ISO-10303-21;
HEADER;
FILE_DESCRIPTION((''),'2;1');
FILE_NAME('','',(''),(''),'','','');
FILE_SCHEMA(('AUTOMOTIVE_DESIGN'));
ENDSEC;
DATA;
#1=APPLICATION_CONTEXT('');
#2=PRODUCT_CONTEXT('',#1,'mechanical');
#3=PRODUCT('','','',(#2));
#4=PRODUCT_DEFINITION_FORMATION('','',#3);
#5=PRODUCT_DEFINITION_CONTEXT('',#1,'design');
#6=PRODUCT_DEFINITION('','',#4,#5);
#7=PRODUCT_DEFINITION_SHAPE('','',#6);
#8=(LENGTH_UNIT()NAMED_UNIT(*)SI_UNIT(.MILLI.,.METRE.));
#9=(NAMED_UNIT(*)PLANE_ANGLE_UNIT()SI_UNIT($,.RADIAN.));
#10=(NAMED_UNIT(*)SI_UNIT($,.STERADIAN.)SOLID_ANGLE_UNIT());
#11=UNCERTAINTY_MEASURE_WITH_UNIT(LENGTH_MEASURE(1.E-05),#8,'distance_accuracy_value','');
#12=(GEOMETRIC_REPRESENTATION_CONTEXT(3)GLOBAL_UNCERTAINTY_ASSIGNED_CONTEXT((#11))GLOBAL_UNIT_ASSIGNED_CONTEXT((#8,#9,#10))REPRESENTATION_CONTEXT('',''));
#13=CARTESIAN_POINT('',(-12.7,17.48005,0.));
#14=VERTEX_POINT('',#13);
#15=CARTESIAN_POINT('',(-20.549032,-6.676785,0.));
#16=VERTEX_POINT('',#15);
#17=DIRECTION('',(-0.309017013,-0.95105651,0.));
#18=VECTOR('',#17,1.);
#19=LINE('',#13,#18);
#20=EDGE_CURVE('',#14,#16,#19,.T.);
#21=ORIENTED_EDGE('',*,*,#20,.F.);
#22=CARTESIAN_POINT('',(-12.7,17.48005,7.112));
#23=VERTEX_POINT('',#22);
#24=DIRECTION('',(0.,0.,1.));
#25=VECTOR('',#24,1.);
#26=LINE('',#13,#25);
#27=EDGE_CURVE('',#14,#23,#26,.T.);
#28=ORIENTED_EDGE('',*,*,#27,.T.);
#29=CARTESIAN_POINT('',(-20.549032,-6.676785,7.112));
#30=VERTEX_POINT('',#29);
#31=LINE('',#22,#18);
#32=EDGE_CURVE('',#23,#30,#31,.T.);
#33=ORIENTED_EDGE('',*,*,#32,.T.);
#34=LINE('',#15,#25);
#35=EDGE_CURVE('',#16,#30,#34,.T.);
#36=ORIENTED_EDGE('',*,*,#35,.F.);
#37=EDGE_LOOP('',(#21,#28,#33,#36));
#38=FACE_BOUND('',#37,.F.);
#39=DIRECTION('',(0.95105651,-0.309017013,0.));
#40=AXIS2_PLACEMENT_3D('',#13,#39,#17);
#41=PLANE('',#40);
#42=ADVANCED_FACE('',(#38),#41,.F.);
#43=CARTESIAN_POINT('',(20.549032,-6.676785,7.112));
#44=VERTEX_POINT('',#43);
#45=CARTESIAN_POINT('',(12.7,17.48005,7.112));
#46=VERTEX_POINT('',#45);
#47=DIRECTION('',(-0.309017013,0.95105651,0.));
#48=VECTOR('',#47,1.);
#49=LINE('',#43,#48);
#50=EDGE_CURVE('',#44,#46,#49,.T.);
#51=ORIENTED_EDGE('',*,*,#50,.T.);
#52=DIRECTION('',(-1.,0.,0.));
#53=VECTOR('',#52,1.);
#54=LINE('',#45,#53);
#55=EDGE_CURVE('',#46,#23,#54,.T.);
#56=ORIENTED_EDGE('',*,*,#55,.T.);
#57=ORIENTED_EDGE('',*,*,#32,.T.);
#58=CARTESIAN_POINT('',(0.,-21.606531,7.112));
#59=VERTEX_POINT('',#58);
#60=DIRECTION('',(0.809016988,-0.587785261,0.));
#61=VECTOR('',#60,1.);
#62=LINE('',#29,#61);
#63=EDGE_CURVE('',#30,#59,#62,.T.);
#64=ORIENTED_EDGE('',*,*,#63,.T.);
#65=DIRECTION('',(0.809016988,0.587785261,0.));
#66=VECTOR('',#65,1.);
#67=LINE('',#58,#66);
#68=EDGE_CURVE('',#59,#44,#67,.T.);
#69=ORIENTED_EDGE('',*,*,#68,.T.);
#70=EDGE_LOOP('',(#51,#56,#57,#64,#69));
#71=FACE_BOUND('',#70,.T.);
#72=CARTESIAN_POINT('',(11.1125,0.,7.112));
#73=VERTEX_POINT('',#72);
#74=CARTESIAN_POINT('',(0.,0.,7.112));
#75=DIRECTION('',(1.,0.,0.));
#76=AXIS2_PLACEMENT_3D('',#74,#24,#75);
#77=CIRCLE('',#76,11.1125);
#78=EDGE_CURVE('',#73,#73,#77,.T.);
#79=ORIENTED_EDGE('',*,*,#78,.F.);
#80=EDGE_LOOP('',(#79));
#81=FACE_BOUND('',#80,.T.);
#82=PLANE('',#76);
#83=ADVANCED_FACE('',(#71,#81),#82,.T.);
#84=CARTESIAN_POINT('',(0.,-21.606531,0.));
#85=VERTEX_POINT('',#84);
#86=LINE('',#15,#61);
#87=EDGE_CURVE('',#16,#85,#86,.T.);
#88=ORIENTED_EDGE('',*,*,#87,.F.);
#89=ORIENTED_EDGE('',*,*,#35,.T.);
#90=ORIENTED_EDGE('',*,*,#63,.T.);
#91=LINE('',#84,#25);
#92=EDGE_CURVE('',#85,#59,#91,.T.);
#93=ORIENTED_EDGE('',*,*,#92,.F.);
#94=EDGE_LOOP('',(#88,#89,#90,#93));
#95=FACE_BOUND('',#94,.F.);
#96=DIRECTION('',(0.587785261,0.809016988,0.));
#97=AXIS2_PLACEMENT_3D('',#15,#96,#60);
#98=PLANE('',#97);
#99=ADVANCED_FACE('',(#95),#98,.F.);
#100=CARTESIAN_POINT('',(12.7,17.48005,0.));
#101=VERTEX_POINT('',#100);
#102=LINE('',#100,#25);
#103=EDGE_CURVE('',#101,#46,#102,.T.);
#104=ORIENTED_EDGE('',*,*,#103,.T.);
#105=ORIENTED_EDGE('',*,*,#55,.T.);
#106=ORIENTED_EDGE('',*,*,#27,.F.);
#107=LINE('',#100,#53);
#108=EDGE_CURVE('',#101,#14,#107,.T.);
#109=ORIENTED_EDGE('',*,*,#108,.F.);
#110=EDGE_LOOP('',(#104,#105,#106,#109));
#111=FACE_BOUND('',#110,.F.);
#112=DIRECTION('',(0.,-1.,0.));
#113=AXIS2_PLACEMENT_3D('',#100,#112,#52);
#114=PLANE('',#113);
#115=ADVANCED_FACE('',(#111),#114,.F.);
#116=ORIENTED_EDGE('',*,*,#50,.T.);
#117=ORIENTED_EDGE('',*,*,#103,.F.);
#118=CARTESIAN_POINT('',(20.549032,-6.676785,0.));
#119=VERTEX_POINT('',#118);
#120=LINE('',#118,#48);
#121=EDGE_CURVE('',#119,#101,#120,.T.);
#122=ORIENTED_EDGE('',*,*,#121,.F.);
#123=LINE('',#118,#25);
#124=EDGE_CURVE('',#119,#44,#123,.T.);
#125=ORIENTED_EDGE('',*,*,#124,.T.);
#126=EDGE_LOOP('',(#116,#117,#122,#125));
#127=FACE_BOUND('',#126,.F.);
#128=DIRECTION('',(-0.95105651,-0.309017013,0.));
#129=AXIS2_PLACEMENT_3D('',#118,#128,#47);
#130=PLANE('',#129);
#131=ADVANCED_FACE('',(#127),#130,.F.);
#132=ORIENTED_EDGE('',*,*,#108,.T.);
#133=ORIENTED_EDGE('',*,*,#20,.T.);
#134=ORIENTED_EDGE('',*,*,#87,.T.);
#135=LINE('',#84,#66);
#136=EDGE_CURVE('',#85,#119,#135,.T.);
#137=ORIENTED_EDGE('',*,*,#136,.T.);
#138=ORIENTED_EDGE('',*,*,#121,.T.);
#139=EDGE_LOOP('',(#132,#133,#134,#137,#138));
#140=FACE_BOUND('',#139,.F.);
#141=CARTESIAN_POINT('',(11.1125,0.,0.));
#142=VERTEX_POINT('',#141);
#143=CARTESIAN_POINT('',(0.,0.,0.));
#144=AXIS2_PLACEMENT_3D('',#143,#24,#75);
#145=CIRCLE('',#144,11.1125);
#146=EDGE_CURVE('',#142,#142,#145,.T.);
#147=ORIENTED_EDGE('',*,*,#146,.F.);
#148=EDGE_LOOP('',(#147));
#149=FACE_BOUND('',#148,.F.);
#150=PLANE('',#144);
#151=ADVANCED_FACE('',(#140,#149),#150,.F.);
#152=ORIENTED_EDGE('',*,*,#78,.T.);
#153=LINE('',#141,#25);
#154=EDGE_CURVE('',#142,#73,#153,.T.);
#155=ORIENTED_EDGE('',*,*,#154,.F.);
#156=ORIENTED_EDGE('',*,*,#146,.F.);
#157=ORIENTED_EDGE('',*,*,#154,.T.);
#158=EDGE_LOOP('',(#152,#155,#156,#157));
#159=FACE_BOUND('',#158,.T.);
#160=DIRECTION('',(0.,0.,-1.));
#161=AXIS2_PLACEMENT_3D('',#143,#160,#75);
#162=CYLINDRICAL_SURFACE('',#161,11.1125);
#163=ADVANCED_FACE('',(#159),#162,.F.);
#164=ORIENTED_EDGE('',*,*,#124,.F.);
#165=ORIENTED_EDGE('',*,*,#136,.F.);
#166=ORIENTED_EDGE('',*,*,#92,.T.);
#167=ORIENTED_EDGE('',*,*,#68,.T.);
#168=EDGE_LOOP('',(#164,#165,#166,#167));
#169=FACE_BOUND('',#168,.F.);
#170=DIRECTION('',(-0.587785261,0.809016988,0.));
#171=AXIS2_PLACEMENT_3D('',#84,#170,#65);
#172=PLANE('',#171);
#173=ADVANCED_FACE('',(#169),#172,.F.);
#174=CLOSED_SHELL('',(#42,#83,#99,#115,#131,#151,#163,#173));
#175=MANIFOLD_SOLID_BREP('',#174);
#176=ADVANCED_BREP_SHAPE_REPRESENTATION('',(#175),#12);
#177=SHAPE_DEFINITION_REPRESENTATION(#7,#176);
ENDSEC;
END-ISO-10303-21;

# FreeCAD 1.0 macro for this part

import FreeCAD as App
import Part
import Sketcher
Q = App.Units.Quantity


def add_polygon(sketch, points):
    """Adds a closed chain of lines whose ends are joined by coincident constraints."""
    first, n = sketch.GeometryCount, len(points)
    for a, b in zip(points, points[1:] + points[:1]):
        sketch.addGeometry(Part.LineSegment(App.Vector(*a, 0), App.Vector(*b, 0)), False)
    for i in range(n):
        sketch.addConstraint(Sketcher.Constraint("Coincident", first + i, 2, first + (i + 1) % n, 1))

doc = App.newDocument("Part")
params = doc.addObject("Spreadsheet::Sheet", "Params")
for row, (alias, value) in enumerate([
    ("sketch1_width", "1 in"),
    ("sketch1_length", "1 in"),
    ("sketch1_diameter", "0.875 in"),
    ("pad1_length", "0.28 in"),
], start=1):
    params.set(f"A{row}", alias)
    params.set(f"B{row}", "=" + value)
    params.setAlias(f"B{row}", alias)

body = doc.addObject("PartDesign::Body", "Body")

sketch1 = doc.addObject("Sketcher::SketchObject", "Sketch")
body.addObject(sketch1)
sketch1.AttachmentSupport = (doc.XY_Plane, [""])
sketch1.MapMode = "FlatFace"
add_polygon(sketch1, [(13, 17), (-13, 17), (-21, -7), (0, -22), (21, -7)])
sketch1.addGeometry(Part.Circle(App.Vector(0, 0, 0), App.Vector(0, 0, 1), 11), False)
sketch1.addConstraint(Sketcher.Constraint("Horizontal", 0))
sketch1.addConstraint(Sketcher.Constraint("Coincident", 5, 3, -1, 1))
sketch1.addConstraint(Sketcher.Constraint("Symmetric", 1, 2, 3, 2, -2))
sketch1.addConstraint(Sketcher.Constraint("PointOnObject", 2, 2, -2))
sketch1.addConstraint(Sketcher.Constraint("Equal", 1, 2))
sketch1.addConstraint(Sketcher.Constraint("Equal", 3, 4))
sketch1.addConstraint(Sketcher.Constraint("DistanceX", 0, 2, 0, 1, Q("1 in")))
sketch1.addConstraint(Sketcher.Constraint("Distance", 1, Q("1 in")))
sketch1.addConstraint(Sketcher.Constraint("Diameter", 5, Q("0.875 in")))
sketch1.addConstraint(Sketcher.Constraint("Angle", 1, Q("-108.000001 deg")))
sketch1.addConstraint(Sketcher.Constraint("DistanceY", -1, 1, 0, 2, 17.48005))
sketch1.setExpression("Constraints[11]", "Params.sketch1_width")
sketch1.setExpression("Constraints[12]", "Params.sketch1_length")
sketch1.setExpression("Constraints[13]", "Params.sketch1_diameter")
pad1 = doc.addObject("PartDesign::Pad", "Pad")
body.addObject(pad1)
pad1.Profile = sketch1
pad1.setExpression("Length", "Params.pad1_length")

doc.recompute()
